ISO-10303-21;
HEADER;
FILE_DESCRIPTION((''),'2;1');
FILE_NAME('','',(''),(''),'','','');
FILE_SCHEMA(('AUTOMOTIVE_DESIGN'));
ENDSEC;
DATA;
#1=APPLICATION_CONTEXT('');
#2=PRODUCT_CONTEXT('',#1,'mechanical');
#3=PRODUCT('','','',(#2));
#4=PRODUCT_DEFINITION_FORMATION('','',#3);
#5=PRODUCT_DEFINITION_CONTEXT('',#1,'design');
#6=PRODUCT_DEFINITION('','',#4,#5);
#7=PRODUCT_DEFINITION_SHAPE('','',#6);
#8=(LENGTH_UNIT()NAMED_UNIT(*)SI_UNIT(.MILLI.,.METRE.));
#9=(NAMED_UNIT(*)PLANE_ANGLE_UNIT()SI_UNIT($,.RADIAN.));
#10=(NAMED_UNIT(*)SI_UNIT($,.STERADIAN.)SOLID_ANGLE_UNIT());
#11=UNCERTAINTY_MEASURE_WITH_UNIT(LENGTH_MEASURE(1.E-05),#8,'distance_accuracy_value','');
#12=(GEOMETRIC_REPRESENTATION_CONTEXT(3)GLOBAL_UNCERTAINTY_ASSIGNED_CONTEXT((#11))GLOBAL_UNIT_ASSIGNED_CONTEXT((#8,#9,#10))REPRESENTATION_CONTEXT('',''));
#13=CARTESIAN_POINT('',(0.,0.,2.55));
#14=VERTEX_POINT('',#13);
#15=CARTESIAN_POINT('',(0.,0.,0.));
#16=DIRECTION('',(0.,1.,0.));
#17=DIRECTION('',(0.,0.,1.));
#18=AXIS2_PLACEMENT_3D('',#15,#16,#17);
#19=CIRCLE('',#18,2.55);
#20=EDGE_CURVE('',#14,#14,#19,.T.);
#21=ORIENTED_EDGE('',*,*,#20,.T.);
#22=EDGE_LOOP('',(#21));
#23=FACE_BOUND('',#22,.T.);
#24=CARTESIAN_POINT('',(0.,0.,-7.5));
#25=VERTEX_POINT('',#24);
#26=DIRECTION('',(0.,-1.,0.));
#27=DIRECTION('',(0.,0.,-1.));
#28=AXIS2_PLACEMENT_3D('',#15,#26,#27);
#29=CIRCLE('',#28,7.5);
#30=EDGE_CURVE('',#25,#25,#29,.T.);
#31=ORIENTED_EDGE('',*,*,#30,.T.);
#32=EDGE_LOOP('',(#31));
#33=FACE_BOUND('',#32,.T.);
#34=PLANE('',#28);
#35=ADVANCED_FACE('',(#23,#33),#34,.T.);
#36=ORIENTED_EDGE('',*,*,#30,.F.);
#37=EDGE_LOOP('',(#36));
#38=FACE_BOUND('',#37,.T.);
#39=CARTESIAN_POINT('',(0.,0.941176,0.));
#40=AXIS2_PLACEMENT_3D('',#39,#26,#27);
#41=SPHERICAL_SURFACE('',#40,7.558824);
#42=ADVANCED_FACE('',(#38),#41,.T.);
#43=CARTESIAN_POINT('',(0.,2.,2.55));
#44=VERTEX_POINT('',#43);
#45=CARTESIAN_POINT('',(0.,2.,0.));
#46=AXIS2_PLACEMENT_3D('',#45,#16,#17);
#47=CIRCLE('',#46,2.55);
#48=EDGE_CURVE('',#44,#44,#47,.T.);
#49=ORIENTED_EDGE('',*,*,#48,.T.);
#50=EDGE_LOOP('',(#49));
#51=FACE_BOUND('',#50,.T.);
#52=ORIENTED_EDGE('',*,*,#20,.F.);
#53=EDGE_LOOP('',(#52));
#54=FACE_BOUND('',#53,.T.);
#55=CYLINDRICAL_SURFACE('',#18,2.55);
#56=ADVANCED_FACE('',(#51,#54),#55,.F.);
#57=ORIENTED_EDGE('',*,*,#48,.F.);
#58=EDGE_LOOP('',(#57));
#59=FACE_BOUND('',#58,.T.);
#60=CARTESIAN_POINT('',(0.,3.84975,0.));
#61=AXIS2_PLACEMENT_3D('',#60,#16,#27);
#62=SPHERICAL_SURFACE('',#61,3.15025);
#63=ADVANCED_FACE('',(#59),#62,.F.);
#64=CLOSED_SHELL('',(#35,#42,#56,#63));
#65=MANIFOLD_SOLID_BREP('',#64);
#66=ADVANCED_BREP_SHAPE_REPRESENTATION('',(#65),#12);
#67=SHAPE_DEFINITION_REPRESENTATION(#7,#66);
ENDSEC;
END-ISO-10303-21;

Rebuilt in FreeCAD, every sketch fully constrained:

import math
import FreeCAD as App
import Part
import Sketcher
from FreeCAD import Vector

doc = App.newDocument("Part")
params = doc.addObject("Spreadsheet::Sheet", "Params")
for row, (alias, value) in enumerate([
    ("sketch1_width", "8.5 mm"),
    ("sketch1_height", "7.5 mm"),
    ("revolution_angle", "360 deg"),
    ("sketch2_width", "2 mm"),
    ("sketch2_width2", "7 mm"),
    ("sketch2_height", "2.55 mm"),
    ("groove_angle", "360 deg"),
], start=1):
    params.set(f"A{row}", alias)
    params.set(f"B{row}", "=" + value)
    params.setAlias(f"B{row}", alias)

body = doc.addObject("PartDesign::Body", "Body")

sketch1 = body.newObject("Sketcher::SketchObject", "Sketch")
sketch1.AttachmentSupport = (doc.getObject("YZ_Plane"), [""])
sketch1.MapMode = "FlatFace"
sketch1.addGeometry([
    Part.ArcOfCircle(Part.Circle(Vector(0.941176, 0, 0), Vector(0, 0, 1), 7.558824), math.radians(-97.152669), math.radians(0)),
    Part.LineSegment(Vector(8.5, 0, 0), Vector(0, 0, 0)),
    Part.LineSegment(Vector(0, 0, 0), Vector(0, -7.5, 0)),
], False)
sketch1.addConstraint([
    Sketcher.Constraint("Coincident", 0, 2, 1, 1),
    Sketcher.Constraint("Coincident", 1, 2, 2, 1),
    Sketcher.Constraint("Coincident", 2, 2, 0, 1),
    Sketcher.Constraint("Horizontal", 1),
    Sketcher.Constraint("Vertical", 2),
    Sketcher.Constraint("Coincident", 1, 2, -1, 1),
    Sketcher.Constraint("PointOnObject", 0, 3, -1),
    Sketcher.Constraint("DistanceX", 1, 2, 1, 1, 8.5),
    Sketcher.Constraint("DistanceY", 2, 2, 2, 1, 7.5),
])
sketch1.setExpression("Constraints[7]", "Params.sketch1_width")
sketch1.setExpression("Constraints[8]", "Params.sketch1_height")
revolution = body.newObject("PartDesign::Revolution", "Revolution")
revolution.Profile = sketch1
revolution.ReferenceAxis = (sketch1, ["H_Axis"])
revolution.setExpression("Angle", "Params.revolution_angle")

sketch2 = body.newObject("Sketcher::SketchObject", "Sketch001")
sketch2.AttachmentSupport = (doc.getObject("YZ_Plane"), [""])
sketch2.MapMode = "FlatFace"
sketch2.addGeometry([
    Part.LineSegment(Vector(0, -2.55, 0), Vector(2, -2.55, 0)),
    Part.ArcOfCircle(Part.Circle(Vector(3.84975, 0, 0), Vector(0, 0, 1), 3.15025), math.radians(-125.956837), math.radians(0)),
    Part.LineSegment(Vector(7, 0, 0), Vector(0, 0, 0)),
    Part.LineSegment(Vector(0, 0, 0), Vector(0, -2.55, 0)),
], False)
sketch2.addConstraint([
    Sketcher.Constraint("Coincident", 0, 2, 1, 1),
    Sketcher.Constraint("Coincident", 1, 2, 2, 1),
    Sketcher.Constraint("Coincident", 2, 2, 3, 1),
    Sketcher.Constraint("Coincident", 3, 2, 0, 1),
    Sketcher.Constraint("Horizontal", 0),
    Sketcher.Constraint("Horizontal", 2),
    Sketcher.Constraint("Vertical", 3),
    Sketcher.Constraint("Coincident", 2, 2, -1, 1),
    Sketcher.Constraint("PointOnObject", 1, 3, -1),
    Sketcher.Constraint("DistanceX", 0, 1, 0, 2, 2.0),
    Sketcher.Constraint("DistanceX", 2, 2, 2, 1, 7.0),
    Sketcher.Constraint("DistanceY", 3, 2, 3, 1, 2.55),
])
sketch2.setExpression("Constraints[9]", "Params.sketch2_width")
sketch2.setExpression("Constraints[10]", "Params.sketch2_width2")
sketch2.setExpression("Constraints[11]", "Params.sketch2_height")
groove = body.newObject("PartDesign::Groove", "Groove")
groove.Profile = sketch2
groove.ReferenceAxis = (sketch2, ["H_Axis"])
groove.setExpression("Angle", "Params.groove_angle")

doc.recompute()
